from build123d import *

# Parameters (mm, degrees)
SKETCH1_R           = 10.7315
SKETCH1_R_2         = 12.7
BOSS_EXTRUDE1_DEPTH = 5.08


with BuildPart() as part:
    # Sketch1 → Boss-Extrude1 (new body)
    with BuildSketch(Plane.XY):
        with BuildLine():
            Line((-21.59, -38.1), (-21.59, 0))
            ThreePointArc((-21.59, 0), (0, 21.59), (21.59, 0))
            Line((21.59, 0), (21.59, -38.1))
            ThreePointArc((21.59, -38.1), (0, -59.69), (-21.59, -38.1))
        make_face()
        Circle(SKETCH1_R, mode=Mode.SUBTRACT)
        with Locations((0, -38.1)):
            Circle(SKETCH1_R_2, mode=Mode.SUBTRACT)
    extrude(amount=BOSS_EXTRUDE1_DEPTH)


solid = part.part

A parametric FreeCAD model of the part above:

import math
import FreeCAD as App
import Part
import Sketcher

V = App.Vector
Q = App.Units.Quantity

doc = App.newDocument("Part")
body = doc.addObject("PartDesign::Body", "Body")

sketch1 = body.newObject("Sketcher::SketchObject", "Sketch")
sketch1.AttachmentSupport = (doc.getObject("XY_Plane"), [""])
sketch1.MapMode = "FlatFace"
sketch1.addGeometry([
    Part.LineSegment(V(-22, 0, 0), V(-22, -38, 0)),
    Part.ArcOfCircle(Part.Circle(V(0, -38, 0), V(0, 0, 1), 22), math.radians(180), math.radians(360)),
    Part.LineSegment(V(22, -38, 0), V(22, 0, 0)),
    Part.ArcOfCircle(Part.Circle(V(0, 0, 0), V(0, 0, 1), 22), math.radians(0), math.radians(180)),
    Part.Circle(V(0, -38, 0), V(0, 0, 1), 13),
    Part.Circle(V(0, 0, 0), V(0, 0, 1), 11),
], False)
sketch1.addConstraint([
    Sketcher.Constraint("Tangent", 0, 2, 1, 1),
    Sketcher.Constraint("Tangent", 1, 2, 2, 1),
    Sketcher.Constraint("Tangent", 2, 2, 3, 1),
    Sketcher.Constraint("Tangent", 3, 2, 0, 1),
    Sketcher.Constraint("Vertical", 0),
    Sketcher.Constraint("Vertical", 2),
    Sketcher.Constraint("Coincident", 3, 3, -1, 1),
    Sketcher.Constraint("Coincident", 5, 3, -1, 1),
    Sketcher.Constraint("Coincident", 4, 3, 1, 3),
    Sketcher.Constraint("Diameter", 4, Q("1 in")),
    Sketcher.Constraint("Radius", 1, Q("0.85 in")),
    Sketcher.Constraint("Diameter", 5, Q("0.845 in")),
    Sketcher.Constraint("DistanceY", 0, 2, 0, 1, Q("1.5 in")),
])
pad1 = body.newObject("PartDesign::Pad", "Pad")
pad1.Profile = sketch1
pad1.Length = Q("0.2 in")

doc.recompute()
